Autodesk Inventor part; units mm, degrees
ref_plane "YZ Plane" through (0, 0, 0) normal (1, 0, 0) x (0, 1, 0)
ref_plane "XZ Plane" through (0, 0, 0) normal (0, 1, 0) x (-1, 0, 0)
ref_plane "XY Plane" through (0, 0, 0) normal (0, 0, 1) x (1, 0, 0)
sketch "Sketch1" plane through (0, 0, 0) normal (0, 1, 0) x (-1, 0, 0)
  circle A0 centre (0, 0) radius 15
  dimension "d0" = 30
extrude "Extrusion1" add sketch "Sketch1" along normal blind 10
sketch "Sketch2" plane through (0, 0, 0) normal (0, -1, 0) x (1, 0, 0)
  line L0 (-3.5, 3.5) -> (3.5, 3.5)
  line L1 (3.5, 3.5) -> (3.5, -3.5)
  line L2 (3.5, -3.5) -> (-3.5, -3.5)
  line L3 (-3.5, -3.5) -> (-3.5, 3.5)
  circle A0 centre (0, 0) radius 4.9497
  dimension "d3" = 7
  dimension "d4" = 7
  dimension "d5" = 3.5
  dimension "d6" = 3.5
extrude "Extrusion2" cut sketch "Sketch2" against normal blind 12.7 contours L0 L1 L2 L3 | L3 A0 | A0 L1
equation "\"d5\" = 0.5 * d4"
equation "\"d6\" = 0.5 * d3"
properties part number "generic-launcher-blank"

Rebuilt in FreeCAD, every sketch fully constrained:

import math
import FreeCAD as App
import Part
import Sketcher

V = App.Vector
Q = App.Units.Quantity

doc = App.newDocument("Part")
body = doc.addObject("PartDesign::Body", "Body")

# Sketch on XZ plane
sketch1 = body.newObject("Sketcher::SketchObject", "Sketch")
sketch1.AttachmentSupport = (doc.getObject("XZ_Plane"), [""])
sketch1.MapMode = "FlatFace"
sketch1.addGeometry(Part.Circle(V(0, 0, 0), V(0, 0, 1), 15), False)
sketch1.addConstraint([
    Sketcher.Constraint("Coincident", 0, 3, -1, 1),
    Sketcher.Constraint("Diameter", 0, Q("1.1811 in")),
])
pad1 = body.newObject("PartDesign::Pad", "Pad")
pad1.Profile = sketch1
pad1.Length = Q("0.3937008 in")
pad1.Reversed = True

# Sketch on XZ plane
sketch2 = body.newObject("Sketcher::SketchObject", "Sketch001")
sketch2.AttachmentSupport = (doc.getObject("XZ_Plane"), [""])
sketch2.MapMode = "FlatFace"
sketch2.addGeometry([
    Part.LineSegment(V(3.5, 3.5, 0), V(-3.5, 3.5, 0)),
    Part.ArcOfCircle(Part.Circle(V(0, 0, 0), V(0, 0, 1), 4.9), math.radians(135), math.radians(225)),
    Part.LineSegment(V(-3.5, -3.5, 0), V(3.5, -3.5, 0)),
    Part.ArcOfCircle(Part.Circle(V(0, 0, 0), V(0, 0, 1), 4.9), math.radians(-45), math.radians(45)),
], False)
sketch2.addConstraint([
    Sketcher.Constraint("Coincident", 0, 2, 1, 1),
    Sketcher.Constraint("Coincident", 1, 2, 2, 1),
    Sketcher.Constraint("Coincident", 2, 2, 3, 1),
    Sketcher.Constraint("Coincident", 3, 2, 0, 1),
    Sketcher.Constraint("Horizontal", 0),
    Sketcher.Constraint("Horizontal", 2),
    Sketcher.Constraint("Coincident", 1, 3, -1, 1),
    Sketcher.Constraint("Coincident", 3, 3, -1, 1),
    Sketcher.Constraint("Equal", 1, 3),
    Sketcher.Constraint("Vertical", 0, 2, 1, 2),
    Sketcher.Constraint("DistanceX", 0, 2, 0, 1, Q("0.2756 in")),
    Sketcher.Constraint("DistanceY", -1, 1, 0, 2, Q("0.1378 in")),
])
pocket1 = body.newObject("PartDesign::Pocket", "Pocket")
pocket1.Profile = sketch2
pocket1.Length = Q("0.5 in")

doc.recompute()
